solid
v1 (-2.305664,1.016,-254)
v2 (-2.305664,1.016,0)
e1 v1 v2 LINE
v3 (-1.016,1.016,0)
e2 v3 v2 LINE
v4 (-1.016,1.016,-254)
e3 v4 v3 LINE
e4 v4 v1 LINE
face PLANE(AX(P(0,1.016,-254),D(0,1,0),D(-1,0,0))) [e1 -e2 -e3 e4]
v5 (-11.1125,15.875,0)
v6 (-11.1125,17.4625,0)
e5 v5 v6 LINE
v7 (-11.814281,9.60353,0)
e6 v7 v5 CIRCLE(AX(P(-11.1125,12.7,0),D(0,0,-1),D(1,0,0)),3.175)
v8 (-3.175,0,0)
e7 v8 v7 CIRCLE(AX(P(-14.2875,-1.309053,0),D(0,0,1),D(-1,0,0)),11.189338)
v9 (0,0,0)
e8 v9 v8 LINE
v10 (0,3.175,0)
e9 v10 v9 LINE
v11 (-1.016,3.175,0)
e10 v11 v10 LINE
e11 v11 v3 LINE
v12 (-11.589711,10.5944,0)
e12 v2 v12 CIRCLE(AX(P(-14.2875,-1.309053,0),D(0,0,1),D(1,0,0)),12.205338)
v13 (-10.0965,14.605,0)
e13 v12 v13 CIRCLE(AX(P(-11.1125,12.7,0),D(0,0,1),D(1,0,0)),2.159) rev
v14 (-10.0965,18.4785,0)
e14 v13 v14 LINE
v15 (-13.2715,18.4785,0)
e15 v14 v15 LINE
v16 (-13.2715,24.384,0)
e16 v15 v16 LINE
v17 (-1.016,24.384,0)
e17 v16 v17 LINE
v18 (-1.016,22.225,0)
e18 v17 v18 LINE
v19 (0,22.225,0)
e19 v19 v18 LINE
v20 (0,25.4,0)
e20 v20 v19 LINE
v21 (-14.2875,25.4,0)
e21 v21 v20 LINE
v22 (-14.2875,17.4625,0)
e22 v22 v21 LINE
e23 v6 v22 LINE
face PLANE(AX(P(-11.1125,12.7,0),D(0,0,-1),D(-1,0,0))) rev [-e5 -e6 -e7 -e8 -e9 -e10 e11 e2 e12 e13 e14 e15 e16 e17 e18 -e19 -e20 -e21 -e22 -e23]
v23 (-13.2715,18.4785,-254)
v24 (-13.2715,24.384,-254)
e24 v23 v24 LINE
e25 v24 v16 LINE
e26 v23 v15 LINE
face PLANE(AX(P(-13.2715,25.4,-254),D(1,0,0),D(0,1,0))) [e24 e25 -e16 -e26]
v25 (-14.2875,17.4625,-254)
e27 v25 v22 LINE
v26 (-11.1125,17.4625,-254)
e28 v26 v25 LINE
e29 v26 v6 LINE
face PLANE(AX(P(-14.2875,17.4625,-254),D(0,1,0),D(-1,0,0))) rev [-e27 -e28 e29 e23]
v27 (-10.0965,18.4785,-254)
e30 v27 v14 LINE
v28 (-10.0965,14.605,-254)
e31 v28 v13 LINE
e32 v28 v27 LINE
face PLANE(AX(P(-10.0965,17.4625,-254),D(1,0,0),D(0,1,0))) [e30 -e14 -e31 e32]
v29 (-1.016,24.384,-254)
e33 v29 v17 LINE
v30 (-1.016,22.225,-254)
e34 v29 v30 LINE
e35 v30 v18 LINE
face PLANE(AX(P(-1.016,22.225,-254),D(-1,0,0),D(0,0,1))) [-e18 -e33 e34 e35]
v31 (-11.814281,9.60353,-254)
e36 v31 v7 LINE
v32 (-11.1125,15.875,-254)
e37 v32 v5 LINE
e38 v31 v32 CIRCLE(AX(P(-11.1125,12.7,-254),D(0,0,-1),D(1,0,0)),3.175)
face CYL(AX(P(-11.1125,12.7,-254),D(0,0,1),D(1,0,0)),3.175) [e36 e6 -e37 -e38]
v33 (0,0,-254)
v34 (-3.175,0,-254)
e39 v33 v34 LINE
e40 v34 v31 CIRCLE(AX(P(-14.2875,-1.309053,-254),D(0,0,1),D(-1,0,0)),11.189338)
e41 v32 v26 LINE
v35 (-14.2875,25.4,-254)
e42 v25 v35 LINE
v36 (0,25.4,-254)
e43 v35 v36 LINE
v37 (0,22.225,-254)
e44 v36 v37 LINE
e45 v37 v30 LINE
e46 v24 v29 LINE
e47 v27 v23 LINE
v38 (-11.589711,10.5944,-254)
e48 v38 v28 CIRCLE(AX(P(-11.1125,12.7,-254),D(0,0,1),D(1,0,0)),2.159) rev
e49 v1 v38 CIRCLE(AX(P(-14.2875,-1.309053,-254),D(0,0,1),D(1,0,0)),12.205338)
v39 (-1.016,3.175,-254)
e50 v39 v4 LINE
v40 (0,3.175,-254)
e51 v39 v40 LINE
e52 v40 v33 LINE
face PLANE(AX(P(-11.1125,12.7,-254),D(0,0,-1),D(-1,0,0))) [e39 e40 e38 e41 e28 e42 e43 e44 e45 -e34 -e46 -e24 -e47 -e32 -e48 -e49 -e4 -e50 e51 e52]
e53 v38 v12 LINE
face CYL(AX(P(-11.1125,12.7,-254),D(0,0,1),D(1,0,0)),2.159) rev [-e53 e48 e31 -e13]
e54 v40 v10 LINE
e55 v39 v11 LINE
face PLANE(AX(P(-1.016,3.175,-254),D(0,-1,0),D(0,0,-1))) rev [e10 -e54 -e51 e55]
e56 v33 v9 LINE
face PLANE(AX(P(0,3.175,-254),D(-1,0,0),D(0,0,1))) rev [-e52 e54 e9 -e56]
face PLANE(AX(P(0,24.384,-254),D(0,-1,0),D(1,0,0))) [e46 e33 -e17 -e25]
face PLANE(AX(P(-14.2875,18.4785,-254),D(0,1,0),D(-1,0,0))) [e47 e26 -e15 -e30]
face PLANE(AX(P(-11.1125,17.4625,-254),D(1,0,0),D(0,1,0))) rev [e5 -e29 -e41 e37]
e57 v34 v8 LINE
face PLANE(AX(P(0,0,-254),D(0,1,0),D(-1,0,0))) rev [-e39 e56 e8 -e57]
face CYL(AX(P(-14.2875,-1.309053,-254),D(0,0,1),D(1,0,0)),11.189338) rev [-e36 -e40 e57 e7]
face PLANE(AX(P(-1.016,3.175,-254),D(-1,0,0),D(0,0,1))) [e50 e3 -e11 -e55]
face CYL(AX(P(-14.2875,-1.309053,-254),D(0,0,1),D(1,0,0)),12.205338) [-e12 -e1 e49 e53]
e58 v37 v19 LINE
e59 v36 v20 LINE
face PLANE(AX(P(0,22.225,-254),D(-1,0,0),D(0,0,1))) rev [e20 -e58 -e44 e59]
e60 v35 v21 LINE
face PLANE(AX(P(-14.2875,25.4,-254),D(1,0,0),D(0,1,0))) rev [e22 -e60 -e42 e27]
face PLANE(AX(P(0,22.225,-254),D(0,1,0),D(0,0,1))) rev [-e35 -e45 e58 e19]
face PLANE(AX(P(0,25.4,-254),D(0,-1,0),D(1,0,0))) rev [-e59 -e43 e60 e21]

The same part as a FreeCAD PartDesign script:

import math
import FreeCAD as App
import Part
import Sketcher

V = App.Vector
Q = App.Units.Quantity

doc = App.newDocument("Part")
body = doc.addObject("PartDesign::Body", "Body")

# Sketch on XY plane
sketch1 = body.newObject("Sketcher::SketchObject", "Sketch")
sketch1.AttachmentSupport = (doc.getObject("XY_Plane"), [""])
sketch1.MapMode = "FlatFace"
sketch1.addGeometry([
    Part.LineSegment(V(0, 22.2, 0), V(0, 25.4, 0)),  # 0
    Part.LineSegment(V(0, 25.4, 0), V(-14.3, 25.4, 0)),  # 1
    Part.LineSegment(V(-14.3, 25.4, 0), V(-14.3, 17.5, 0)),  # 2
    Part.LineSegment(V(-14.3, 17.5, 0), V(-11.1, 17.5, 0)),  # 3
    Part.LineSegment(V(-11.1, 17.5, 0), V(-11.1, 15.9, 0)),  # 4
    Part.ArcOfCircle(Part.Circle(V(-11.1, 12.7, 0), V(0, 0, 1), 3.2), math.radians(90), math.radians(257)),  # 5
    Part.ArcOfCircle(Part.Circle(V(-14.3, -1.3, 0), V(0, 0, 1), 11.2), math.radians(7), math.radians(77)),  # 6
    Part.LineSegment(V(-3.2, 0, 0), V(0, 0, 0)),  # 7
    Part.LineSegment(V(0, 0, 0), V(0, 3.2, 0)),  # 8
    Part.LineSegment(V(0, 3.2, 0), V(-1, 3.2, 0)),  # 9
    Part.LineSegment(V(-1, 3.2, 0), V(-1, 1, 0)),  # 10
    Part.LineSegment(V(-1, 1, 0), V(-2.3, 1, 0)),  # 11
    Part.ArcOfCircle(Part.Circle(V(-14.3, -1.3, 0), V(0, 0, 1), 12.2), math.radians(11), math.radians(77)),  # 12
    Part.ArcOfCircle(Part.Circle(V(-11.1, 12.7, 0), V(0, 0, 1), 2.2), math.radians(62), math.radians(257)),  # 13
    Part.LineSegment(V(-10.1, 14.6, 0), V(-10.1, 18.5, 0)),  # 14
    Part.LineSegment(V(-10.1, 18.5, 0), V(-13.3, 18.5, 0)),  # 15
    Part.LineSegment(V(-13.3, 18.5, 0), V(-13.3, 24.4, 0)),  # 16
    Part.LineSegment(V(-13.3, 24.4, 0), V(-1, 24.4, 0)),  # 17
    Part.LineSegment(V(-1, 24.4, 0), V(-1, 22.2, 0)),  # 18
    Part.LineSegment(V(-1, 22.2, 0), V(0, 22.2, 0)),  # 19
], False)
sketch1.addConstraint([
    Sketcher.Constraint("Coincident", 0, 2, 1, 1),
    Sketcher.Constraint("Coincident", 1, 2, 2, 1),
    Sketcher.Constraint("Coincident", 2, 2, 3, 1),
    Sketcher.Constraint("Coincident", 3, 2, 4, 1),
    Sketcher.Constraint("Coincident", 4, 2, 5, 1),
    Sketcher.Constraint("Tangent", 5, 2, 6, 2),
    Sketcher.Constraint("Coincident", 6, 1, 7, 1),
    Sketcher.Constraint("Coincident", 7, 2, 8, 1),
    Sketcher.Constraint("Coincident", 8, 2, 9, 1),
    Sketcher.Constraint("Coincident", 9, 2, 10, 1),
    Sketcher.Constraint("Coincident", 10, 2, 11, 1),
    Sketcher.Constraint("Coincident", 11, 2, 12, 1),
    Sketcher.Constraint("Tangent", 12, 2, 13, 2),
    Sketcher.Constraint("Coincident", 13, 1, 14, 1),
    Sketcher.Constraint("Coincident", 14, 2, 15, 1),
    Sketcher.Constraint("Coincident", 15, 2, 16, 1),
    Sketcher.Constraint("Coincident", 16, 2, 17, 1),
    Sketcher.Constraint("Coincident", 17, 2, 18, 1),
    Sketcher.Constraint("Coincident", 18, 2, 19, 1),
    Sketcher.Constraint("Coincident", 19, 2, 0, 1),
    Sketcher.Constraint("Vertical", 0),
    Sketcher.Constraint("Horizontal", 1),
    Sketcher.Constraint("Vertical", 2),
    Sketcher.Constraint("Horizontal", 3),
    Sketcher.Constraint("Vertical", 4),
    Sketcher.Constraint("Horizontal", 7),
    Sketcher.Constraint("Vertical", 8),
    Sketcher.Constraint("Horizontal", 9),
    Sketcher.Constraint("Vertical", 10),
    Sketcher.Constraint("Horizontal", 11),
    Sketcher.Constraint("Vertical", 14),
    Sketcher.Constraint("Horizontal", 15),
    Sketcher.Constraint("Vertical", 16),
    Sketcher.Constraint("Horizontal", 17),
    Sketcher.Constraint("Vertical", 18),
    Sketcher.Constraint("Horizontal", 19),
    Sketcher.Constraint("Coincident", 7, 2, -1, 1),
    Sketcher.Constraint("Coincident", 12, 3, 6, 3),
    Sketcher.Constraint("Coincident", 13, 3, 5, 3),
    Sketcher.Constraint("PointOnObject", 0, 2, -2),
    Sketcher.Constraint("Vertical", 12, 3, 1, 2),
    Sketcher.Constraint("Vertical", 13, 3, 3, 2),
    Sketcher.Constraint("Vertical", 10, 2, 17, 2),
    Sketcher.Constraint("Equal", 3, 7),
    Sketcher.Constraint("Equal", 7, 15),
    Sketcher.Constraint("Equal", 15, 0),
    Sketcher.Constraint("Equal", 0, 8),
    Sketcher.Constraint("Equal", 10, 18),
    Sketcher.Constraint("DistanceY", -1, 1, 0, 2, Q("1 in")),
    Sketcher.Constraint("Radius", 5, Q("0.125 in")),
    Sketcher.Constraint("Radius", 13, Q("0.085 in")),
    Sketcher.Constraint("DistanceX", 9, 2, 9, 1, Q("0.04 in")),
    Sketcher.Constraint("DistanceY", -1, 1, 5, 3, Q("0.5 in")),
    Sketcher.Constraint("DistanceY", 13, 1, 18, 2, Q("0.3 in")),
    Sketcher.Constraint("DistanceX", 1, 2, 1, 1, Q("0.5625 in")),
    Sketcher.Constraint("DistanceX", 3, 1, 3, 2, Q("0.125 in")),
    Sketcher.Constraint("DistanceY", 2, 2, 2, 1, Q("0.3125 in")),
    Sketcher.Constraint("DistanceY", 10, 2, 10, 1, Q("0.085 in")),
    Sketcher.Constraint("DistanceY", 3, 2, 14, 2, Q("0.04 in")),
])
pad1 = body.newObject("PartDesign::Pad", "Pad")
pad1.Profile = sketch1
pad1.Length = Q("10 in")
pad1.Reversed = True

doc.recompute()
